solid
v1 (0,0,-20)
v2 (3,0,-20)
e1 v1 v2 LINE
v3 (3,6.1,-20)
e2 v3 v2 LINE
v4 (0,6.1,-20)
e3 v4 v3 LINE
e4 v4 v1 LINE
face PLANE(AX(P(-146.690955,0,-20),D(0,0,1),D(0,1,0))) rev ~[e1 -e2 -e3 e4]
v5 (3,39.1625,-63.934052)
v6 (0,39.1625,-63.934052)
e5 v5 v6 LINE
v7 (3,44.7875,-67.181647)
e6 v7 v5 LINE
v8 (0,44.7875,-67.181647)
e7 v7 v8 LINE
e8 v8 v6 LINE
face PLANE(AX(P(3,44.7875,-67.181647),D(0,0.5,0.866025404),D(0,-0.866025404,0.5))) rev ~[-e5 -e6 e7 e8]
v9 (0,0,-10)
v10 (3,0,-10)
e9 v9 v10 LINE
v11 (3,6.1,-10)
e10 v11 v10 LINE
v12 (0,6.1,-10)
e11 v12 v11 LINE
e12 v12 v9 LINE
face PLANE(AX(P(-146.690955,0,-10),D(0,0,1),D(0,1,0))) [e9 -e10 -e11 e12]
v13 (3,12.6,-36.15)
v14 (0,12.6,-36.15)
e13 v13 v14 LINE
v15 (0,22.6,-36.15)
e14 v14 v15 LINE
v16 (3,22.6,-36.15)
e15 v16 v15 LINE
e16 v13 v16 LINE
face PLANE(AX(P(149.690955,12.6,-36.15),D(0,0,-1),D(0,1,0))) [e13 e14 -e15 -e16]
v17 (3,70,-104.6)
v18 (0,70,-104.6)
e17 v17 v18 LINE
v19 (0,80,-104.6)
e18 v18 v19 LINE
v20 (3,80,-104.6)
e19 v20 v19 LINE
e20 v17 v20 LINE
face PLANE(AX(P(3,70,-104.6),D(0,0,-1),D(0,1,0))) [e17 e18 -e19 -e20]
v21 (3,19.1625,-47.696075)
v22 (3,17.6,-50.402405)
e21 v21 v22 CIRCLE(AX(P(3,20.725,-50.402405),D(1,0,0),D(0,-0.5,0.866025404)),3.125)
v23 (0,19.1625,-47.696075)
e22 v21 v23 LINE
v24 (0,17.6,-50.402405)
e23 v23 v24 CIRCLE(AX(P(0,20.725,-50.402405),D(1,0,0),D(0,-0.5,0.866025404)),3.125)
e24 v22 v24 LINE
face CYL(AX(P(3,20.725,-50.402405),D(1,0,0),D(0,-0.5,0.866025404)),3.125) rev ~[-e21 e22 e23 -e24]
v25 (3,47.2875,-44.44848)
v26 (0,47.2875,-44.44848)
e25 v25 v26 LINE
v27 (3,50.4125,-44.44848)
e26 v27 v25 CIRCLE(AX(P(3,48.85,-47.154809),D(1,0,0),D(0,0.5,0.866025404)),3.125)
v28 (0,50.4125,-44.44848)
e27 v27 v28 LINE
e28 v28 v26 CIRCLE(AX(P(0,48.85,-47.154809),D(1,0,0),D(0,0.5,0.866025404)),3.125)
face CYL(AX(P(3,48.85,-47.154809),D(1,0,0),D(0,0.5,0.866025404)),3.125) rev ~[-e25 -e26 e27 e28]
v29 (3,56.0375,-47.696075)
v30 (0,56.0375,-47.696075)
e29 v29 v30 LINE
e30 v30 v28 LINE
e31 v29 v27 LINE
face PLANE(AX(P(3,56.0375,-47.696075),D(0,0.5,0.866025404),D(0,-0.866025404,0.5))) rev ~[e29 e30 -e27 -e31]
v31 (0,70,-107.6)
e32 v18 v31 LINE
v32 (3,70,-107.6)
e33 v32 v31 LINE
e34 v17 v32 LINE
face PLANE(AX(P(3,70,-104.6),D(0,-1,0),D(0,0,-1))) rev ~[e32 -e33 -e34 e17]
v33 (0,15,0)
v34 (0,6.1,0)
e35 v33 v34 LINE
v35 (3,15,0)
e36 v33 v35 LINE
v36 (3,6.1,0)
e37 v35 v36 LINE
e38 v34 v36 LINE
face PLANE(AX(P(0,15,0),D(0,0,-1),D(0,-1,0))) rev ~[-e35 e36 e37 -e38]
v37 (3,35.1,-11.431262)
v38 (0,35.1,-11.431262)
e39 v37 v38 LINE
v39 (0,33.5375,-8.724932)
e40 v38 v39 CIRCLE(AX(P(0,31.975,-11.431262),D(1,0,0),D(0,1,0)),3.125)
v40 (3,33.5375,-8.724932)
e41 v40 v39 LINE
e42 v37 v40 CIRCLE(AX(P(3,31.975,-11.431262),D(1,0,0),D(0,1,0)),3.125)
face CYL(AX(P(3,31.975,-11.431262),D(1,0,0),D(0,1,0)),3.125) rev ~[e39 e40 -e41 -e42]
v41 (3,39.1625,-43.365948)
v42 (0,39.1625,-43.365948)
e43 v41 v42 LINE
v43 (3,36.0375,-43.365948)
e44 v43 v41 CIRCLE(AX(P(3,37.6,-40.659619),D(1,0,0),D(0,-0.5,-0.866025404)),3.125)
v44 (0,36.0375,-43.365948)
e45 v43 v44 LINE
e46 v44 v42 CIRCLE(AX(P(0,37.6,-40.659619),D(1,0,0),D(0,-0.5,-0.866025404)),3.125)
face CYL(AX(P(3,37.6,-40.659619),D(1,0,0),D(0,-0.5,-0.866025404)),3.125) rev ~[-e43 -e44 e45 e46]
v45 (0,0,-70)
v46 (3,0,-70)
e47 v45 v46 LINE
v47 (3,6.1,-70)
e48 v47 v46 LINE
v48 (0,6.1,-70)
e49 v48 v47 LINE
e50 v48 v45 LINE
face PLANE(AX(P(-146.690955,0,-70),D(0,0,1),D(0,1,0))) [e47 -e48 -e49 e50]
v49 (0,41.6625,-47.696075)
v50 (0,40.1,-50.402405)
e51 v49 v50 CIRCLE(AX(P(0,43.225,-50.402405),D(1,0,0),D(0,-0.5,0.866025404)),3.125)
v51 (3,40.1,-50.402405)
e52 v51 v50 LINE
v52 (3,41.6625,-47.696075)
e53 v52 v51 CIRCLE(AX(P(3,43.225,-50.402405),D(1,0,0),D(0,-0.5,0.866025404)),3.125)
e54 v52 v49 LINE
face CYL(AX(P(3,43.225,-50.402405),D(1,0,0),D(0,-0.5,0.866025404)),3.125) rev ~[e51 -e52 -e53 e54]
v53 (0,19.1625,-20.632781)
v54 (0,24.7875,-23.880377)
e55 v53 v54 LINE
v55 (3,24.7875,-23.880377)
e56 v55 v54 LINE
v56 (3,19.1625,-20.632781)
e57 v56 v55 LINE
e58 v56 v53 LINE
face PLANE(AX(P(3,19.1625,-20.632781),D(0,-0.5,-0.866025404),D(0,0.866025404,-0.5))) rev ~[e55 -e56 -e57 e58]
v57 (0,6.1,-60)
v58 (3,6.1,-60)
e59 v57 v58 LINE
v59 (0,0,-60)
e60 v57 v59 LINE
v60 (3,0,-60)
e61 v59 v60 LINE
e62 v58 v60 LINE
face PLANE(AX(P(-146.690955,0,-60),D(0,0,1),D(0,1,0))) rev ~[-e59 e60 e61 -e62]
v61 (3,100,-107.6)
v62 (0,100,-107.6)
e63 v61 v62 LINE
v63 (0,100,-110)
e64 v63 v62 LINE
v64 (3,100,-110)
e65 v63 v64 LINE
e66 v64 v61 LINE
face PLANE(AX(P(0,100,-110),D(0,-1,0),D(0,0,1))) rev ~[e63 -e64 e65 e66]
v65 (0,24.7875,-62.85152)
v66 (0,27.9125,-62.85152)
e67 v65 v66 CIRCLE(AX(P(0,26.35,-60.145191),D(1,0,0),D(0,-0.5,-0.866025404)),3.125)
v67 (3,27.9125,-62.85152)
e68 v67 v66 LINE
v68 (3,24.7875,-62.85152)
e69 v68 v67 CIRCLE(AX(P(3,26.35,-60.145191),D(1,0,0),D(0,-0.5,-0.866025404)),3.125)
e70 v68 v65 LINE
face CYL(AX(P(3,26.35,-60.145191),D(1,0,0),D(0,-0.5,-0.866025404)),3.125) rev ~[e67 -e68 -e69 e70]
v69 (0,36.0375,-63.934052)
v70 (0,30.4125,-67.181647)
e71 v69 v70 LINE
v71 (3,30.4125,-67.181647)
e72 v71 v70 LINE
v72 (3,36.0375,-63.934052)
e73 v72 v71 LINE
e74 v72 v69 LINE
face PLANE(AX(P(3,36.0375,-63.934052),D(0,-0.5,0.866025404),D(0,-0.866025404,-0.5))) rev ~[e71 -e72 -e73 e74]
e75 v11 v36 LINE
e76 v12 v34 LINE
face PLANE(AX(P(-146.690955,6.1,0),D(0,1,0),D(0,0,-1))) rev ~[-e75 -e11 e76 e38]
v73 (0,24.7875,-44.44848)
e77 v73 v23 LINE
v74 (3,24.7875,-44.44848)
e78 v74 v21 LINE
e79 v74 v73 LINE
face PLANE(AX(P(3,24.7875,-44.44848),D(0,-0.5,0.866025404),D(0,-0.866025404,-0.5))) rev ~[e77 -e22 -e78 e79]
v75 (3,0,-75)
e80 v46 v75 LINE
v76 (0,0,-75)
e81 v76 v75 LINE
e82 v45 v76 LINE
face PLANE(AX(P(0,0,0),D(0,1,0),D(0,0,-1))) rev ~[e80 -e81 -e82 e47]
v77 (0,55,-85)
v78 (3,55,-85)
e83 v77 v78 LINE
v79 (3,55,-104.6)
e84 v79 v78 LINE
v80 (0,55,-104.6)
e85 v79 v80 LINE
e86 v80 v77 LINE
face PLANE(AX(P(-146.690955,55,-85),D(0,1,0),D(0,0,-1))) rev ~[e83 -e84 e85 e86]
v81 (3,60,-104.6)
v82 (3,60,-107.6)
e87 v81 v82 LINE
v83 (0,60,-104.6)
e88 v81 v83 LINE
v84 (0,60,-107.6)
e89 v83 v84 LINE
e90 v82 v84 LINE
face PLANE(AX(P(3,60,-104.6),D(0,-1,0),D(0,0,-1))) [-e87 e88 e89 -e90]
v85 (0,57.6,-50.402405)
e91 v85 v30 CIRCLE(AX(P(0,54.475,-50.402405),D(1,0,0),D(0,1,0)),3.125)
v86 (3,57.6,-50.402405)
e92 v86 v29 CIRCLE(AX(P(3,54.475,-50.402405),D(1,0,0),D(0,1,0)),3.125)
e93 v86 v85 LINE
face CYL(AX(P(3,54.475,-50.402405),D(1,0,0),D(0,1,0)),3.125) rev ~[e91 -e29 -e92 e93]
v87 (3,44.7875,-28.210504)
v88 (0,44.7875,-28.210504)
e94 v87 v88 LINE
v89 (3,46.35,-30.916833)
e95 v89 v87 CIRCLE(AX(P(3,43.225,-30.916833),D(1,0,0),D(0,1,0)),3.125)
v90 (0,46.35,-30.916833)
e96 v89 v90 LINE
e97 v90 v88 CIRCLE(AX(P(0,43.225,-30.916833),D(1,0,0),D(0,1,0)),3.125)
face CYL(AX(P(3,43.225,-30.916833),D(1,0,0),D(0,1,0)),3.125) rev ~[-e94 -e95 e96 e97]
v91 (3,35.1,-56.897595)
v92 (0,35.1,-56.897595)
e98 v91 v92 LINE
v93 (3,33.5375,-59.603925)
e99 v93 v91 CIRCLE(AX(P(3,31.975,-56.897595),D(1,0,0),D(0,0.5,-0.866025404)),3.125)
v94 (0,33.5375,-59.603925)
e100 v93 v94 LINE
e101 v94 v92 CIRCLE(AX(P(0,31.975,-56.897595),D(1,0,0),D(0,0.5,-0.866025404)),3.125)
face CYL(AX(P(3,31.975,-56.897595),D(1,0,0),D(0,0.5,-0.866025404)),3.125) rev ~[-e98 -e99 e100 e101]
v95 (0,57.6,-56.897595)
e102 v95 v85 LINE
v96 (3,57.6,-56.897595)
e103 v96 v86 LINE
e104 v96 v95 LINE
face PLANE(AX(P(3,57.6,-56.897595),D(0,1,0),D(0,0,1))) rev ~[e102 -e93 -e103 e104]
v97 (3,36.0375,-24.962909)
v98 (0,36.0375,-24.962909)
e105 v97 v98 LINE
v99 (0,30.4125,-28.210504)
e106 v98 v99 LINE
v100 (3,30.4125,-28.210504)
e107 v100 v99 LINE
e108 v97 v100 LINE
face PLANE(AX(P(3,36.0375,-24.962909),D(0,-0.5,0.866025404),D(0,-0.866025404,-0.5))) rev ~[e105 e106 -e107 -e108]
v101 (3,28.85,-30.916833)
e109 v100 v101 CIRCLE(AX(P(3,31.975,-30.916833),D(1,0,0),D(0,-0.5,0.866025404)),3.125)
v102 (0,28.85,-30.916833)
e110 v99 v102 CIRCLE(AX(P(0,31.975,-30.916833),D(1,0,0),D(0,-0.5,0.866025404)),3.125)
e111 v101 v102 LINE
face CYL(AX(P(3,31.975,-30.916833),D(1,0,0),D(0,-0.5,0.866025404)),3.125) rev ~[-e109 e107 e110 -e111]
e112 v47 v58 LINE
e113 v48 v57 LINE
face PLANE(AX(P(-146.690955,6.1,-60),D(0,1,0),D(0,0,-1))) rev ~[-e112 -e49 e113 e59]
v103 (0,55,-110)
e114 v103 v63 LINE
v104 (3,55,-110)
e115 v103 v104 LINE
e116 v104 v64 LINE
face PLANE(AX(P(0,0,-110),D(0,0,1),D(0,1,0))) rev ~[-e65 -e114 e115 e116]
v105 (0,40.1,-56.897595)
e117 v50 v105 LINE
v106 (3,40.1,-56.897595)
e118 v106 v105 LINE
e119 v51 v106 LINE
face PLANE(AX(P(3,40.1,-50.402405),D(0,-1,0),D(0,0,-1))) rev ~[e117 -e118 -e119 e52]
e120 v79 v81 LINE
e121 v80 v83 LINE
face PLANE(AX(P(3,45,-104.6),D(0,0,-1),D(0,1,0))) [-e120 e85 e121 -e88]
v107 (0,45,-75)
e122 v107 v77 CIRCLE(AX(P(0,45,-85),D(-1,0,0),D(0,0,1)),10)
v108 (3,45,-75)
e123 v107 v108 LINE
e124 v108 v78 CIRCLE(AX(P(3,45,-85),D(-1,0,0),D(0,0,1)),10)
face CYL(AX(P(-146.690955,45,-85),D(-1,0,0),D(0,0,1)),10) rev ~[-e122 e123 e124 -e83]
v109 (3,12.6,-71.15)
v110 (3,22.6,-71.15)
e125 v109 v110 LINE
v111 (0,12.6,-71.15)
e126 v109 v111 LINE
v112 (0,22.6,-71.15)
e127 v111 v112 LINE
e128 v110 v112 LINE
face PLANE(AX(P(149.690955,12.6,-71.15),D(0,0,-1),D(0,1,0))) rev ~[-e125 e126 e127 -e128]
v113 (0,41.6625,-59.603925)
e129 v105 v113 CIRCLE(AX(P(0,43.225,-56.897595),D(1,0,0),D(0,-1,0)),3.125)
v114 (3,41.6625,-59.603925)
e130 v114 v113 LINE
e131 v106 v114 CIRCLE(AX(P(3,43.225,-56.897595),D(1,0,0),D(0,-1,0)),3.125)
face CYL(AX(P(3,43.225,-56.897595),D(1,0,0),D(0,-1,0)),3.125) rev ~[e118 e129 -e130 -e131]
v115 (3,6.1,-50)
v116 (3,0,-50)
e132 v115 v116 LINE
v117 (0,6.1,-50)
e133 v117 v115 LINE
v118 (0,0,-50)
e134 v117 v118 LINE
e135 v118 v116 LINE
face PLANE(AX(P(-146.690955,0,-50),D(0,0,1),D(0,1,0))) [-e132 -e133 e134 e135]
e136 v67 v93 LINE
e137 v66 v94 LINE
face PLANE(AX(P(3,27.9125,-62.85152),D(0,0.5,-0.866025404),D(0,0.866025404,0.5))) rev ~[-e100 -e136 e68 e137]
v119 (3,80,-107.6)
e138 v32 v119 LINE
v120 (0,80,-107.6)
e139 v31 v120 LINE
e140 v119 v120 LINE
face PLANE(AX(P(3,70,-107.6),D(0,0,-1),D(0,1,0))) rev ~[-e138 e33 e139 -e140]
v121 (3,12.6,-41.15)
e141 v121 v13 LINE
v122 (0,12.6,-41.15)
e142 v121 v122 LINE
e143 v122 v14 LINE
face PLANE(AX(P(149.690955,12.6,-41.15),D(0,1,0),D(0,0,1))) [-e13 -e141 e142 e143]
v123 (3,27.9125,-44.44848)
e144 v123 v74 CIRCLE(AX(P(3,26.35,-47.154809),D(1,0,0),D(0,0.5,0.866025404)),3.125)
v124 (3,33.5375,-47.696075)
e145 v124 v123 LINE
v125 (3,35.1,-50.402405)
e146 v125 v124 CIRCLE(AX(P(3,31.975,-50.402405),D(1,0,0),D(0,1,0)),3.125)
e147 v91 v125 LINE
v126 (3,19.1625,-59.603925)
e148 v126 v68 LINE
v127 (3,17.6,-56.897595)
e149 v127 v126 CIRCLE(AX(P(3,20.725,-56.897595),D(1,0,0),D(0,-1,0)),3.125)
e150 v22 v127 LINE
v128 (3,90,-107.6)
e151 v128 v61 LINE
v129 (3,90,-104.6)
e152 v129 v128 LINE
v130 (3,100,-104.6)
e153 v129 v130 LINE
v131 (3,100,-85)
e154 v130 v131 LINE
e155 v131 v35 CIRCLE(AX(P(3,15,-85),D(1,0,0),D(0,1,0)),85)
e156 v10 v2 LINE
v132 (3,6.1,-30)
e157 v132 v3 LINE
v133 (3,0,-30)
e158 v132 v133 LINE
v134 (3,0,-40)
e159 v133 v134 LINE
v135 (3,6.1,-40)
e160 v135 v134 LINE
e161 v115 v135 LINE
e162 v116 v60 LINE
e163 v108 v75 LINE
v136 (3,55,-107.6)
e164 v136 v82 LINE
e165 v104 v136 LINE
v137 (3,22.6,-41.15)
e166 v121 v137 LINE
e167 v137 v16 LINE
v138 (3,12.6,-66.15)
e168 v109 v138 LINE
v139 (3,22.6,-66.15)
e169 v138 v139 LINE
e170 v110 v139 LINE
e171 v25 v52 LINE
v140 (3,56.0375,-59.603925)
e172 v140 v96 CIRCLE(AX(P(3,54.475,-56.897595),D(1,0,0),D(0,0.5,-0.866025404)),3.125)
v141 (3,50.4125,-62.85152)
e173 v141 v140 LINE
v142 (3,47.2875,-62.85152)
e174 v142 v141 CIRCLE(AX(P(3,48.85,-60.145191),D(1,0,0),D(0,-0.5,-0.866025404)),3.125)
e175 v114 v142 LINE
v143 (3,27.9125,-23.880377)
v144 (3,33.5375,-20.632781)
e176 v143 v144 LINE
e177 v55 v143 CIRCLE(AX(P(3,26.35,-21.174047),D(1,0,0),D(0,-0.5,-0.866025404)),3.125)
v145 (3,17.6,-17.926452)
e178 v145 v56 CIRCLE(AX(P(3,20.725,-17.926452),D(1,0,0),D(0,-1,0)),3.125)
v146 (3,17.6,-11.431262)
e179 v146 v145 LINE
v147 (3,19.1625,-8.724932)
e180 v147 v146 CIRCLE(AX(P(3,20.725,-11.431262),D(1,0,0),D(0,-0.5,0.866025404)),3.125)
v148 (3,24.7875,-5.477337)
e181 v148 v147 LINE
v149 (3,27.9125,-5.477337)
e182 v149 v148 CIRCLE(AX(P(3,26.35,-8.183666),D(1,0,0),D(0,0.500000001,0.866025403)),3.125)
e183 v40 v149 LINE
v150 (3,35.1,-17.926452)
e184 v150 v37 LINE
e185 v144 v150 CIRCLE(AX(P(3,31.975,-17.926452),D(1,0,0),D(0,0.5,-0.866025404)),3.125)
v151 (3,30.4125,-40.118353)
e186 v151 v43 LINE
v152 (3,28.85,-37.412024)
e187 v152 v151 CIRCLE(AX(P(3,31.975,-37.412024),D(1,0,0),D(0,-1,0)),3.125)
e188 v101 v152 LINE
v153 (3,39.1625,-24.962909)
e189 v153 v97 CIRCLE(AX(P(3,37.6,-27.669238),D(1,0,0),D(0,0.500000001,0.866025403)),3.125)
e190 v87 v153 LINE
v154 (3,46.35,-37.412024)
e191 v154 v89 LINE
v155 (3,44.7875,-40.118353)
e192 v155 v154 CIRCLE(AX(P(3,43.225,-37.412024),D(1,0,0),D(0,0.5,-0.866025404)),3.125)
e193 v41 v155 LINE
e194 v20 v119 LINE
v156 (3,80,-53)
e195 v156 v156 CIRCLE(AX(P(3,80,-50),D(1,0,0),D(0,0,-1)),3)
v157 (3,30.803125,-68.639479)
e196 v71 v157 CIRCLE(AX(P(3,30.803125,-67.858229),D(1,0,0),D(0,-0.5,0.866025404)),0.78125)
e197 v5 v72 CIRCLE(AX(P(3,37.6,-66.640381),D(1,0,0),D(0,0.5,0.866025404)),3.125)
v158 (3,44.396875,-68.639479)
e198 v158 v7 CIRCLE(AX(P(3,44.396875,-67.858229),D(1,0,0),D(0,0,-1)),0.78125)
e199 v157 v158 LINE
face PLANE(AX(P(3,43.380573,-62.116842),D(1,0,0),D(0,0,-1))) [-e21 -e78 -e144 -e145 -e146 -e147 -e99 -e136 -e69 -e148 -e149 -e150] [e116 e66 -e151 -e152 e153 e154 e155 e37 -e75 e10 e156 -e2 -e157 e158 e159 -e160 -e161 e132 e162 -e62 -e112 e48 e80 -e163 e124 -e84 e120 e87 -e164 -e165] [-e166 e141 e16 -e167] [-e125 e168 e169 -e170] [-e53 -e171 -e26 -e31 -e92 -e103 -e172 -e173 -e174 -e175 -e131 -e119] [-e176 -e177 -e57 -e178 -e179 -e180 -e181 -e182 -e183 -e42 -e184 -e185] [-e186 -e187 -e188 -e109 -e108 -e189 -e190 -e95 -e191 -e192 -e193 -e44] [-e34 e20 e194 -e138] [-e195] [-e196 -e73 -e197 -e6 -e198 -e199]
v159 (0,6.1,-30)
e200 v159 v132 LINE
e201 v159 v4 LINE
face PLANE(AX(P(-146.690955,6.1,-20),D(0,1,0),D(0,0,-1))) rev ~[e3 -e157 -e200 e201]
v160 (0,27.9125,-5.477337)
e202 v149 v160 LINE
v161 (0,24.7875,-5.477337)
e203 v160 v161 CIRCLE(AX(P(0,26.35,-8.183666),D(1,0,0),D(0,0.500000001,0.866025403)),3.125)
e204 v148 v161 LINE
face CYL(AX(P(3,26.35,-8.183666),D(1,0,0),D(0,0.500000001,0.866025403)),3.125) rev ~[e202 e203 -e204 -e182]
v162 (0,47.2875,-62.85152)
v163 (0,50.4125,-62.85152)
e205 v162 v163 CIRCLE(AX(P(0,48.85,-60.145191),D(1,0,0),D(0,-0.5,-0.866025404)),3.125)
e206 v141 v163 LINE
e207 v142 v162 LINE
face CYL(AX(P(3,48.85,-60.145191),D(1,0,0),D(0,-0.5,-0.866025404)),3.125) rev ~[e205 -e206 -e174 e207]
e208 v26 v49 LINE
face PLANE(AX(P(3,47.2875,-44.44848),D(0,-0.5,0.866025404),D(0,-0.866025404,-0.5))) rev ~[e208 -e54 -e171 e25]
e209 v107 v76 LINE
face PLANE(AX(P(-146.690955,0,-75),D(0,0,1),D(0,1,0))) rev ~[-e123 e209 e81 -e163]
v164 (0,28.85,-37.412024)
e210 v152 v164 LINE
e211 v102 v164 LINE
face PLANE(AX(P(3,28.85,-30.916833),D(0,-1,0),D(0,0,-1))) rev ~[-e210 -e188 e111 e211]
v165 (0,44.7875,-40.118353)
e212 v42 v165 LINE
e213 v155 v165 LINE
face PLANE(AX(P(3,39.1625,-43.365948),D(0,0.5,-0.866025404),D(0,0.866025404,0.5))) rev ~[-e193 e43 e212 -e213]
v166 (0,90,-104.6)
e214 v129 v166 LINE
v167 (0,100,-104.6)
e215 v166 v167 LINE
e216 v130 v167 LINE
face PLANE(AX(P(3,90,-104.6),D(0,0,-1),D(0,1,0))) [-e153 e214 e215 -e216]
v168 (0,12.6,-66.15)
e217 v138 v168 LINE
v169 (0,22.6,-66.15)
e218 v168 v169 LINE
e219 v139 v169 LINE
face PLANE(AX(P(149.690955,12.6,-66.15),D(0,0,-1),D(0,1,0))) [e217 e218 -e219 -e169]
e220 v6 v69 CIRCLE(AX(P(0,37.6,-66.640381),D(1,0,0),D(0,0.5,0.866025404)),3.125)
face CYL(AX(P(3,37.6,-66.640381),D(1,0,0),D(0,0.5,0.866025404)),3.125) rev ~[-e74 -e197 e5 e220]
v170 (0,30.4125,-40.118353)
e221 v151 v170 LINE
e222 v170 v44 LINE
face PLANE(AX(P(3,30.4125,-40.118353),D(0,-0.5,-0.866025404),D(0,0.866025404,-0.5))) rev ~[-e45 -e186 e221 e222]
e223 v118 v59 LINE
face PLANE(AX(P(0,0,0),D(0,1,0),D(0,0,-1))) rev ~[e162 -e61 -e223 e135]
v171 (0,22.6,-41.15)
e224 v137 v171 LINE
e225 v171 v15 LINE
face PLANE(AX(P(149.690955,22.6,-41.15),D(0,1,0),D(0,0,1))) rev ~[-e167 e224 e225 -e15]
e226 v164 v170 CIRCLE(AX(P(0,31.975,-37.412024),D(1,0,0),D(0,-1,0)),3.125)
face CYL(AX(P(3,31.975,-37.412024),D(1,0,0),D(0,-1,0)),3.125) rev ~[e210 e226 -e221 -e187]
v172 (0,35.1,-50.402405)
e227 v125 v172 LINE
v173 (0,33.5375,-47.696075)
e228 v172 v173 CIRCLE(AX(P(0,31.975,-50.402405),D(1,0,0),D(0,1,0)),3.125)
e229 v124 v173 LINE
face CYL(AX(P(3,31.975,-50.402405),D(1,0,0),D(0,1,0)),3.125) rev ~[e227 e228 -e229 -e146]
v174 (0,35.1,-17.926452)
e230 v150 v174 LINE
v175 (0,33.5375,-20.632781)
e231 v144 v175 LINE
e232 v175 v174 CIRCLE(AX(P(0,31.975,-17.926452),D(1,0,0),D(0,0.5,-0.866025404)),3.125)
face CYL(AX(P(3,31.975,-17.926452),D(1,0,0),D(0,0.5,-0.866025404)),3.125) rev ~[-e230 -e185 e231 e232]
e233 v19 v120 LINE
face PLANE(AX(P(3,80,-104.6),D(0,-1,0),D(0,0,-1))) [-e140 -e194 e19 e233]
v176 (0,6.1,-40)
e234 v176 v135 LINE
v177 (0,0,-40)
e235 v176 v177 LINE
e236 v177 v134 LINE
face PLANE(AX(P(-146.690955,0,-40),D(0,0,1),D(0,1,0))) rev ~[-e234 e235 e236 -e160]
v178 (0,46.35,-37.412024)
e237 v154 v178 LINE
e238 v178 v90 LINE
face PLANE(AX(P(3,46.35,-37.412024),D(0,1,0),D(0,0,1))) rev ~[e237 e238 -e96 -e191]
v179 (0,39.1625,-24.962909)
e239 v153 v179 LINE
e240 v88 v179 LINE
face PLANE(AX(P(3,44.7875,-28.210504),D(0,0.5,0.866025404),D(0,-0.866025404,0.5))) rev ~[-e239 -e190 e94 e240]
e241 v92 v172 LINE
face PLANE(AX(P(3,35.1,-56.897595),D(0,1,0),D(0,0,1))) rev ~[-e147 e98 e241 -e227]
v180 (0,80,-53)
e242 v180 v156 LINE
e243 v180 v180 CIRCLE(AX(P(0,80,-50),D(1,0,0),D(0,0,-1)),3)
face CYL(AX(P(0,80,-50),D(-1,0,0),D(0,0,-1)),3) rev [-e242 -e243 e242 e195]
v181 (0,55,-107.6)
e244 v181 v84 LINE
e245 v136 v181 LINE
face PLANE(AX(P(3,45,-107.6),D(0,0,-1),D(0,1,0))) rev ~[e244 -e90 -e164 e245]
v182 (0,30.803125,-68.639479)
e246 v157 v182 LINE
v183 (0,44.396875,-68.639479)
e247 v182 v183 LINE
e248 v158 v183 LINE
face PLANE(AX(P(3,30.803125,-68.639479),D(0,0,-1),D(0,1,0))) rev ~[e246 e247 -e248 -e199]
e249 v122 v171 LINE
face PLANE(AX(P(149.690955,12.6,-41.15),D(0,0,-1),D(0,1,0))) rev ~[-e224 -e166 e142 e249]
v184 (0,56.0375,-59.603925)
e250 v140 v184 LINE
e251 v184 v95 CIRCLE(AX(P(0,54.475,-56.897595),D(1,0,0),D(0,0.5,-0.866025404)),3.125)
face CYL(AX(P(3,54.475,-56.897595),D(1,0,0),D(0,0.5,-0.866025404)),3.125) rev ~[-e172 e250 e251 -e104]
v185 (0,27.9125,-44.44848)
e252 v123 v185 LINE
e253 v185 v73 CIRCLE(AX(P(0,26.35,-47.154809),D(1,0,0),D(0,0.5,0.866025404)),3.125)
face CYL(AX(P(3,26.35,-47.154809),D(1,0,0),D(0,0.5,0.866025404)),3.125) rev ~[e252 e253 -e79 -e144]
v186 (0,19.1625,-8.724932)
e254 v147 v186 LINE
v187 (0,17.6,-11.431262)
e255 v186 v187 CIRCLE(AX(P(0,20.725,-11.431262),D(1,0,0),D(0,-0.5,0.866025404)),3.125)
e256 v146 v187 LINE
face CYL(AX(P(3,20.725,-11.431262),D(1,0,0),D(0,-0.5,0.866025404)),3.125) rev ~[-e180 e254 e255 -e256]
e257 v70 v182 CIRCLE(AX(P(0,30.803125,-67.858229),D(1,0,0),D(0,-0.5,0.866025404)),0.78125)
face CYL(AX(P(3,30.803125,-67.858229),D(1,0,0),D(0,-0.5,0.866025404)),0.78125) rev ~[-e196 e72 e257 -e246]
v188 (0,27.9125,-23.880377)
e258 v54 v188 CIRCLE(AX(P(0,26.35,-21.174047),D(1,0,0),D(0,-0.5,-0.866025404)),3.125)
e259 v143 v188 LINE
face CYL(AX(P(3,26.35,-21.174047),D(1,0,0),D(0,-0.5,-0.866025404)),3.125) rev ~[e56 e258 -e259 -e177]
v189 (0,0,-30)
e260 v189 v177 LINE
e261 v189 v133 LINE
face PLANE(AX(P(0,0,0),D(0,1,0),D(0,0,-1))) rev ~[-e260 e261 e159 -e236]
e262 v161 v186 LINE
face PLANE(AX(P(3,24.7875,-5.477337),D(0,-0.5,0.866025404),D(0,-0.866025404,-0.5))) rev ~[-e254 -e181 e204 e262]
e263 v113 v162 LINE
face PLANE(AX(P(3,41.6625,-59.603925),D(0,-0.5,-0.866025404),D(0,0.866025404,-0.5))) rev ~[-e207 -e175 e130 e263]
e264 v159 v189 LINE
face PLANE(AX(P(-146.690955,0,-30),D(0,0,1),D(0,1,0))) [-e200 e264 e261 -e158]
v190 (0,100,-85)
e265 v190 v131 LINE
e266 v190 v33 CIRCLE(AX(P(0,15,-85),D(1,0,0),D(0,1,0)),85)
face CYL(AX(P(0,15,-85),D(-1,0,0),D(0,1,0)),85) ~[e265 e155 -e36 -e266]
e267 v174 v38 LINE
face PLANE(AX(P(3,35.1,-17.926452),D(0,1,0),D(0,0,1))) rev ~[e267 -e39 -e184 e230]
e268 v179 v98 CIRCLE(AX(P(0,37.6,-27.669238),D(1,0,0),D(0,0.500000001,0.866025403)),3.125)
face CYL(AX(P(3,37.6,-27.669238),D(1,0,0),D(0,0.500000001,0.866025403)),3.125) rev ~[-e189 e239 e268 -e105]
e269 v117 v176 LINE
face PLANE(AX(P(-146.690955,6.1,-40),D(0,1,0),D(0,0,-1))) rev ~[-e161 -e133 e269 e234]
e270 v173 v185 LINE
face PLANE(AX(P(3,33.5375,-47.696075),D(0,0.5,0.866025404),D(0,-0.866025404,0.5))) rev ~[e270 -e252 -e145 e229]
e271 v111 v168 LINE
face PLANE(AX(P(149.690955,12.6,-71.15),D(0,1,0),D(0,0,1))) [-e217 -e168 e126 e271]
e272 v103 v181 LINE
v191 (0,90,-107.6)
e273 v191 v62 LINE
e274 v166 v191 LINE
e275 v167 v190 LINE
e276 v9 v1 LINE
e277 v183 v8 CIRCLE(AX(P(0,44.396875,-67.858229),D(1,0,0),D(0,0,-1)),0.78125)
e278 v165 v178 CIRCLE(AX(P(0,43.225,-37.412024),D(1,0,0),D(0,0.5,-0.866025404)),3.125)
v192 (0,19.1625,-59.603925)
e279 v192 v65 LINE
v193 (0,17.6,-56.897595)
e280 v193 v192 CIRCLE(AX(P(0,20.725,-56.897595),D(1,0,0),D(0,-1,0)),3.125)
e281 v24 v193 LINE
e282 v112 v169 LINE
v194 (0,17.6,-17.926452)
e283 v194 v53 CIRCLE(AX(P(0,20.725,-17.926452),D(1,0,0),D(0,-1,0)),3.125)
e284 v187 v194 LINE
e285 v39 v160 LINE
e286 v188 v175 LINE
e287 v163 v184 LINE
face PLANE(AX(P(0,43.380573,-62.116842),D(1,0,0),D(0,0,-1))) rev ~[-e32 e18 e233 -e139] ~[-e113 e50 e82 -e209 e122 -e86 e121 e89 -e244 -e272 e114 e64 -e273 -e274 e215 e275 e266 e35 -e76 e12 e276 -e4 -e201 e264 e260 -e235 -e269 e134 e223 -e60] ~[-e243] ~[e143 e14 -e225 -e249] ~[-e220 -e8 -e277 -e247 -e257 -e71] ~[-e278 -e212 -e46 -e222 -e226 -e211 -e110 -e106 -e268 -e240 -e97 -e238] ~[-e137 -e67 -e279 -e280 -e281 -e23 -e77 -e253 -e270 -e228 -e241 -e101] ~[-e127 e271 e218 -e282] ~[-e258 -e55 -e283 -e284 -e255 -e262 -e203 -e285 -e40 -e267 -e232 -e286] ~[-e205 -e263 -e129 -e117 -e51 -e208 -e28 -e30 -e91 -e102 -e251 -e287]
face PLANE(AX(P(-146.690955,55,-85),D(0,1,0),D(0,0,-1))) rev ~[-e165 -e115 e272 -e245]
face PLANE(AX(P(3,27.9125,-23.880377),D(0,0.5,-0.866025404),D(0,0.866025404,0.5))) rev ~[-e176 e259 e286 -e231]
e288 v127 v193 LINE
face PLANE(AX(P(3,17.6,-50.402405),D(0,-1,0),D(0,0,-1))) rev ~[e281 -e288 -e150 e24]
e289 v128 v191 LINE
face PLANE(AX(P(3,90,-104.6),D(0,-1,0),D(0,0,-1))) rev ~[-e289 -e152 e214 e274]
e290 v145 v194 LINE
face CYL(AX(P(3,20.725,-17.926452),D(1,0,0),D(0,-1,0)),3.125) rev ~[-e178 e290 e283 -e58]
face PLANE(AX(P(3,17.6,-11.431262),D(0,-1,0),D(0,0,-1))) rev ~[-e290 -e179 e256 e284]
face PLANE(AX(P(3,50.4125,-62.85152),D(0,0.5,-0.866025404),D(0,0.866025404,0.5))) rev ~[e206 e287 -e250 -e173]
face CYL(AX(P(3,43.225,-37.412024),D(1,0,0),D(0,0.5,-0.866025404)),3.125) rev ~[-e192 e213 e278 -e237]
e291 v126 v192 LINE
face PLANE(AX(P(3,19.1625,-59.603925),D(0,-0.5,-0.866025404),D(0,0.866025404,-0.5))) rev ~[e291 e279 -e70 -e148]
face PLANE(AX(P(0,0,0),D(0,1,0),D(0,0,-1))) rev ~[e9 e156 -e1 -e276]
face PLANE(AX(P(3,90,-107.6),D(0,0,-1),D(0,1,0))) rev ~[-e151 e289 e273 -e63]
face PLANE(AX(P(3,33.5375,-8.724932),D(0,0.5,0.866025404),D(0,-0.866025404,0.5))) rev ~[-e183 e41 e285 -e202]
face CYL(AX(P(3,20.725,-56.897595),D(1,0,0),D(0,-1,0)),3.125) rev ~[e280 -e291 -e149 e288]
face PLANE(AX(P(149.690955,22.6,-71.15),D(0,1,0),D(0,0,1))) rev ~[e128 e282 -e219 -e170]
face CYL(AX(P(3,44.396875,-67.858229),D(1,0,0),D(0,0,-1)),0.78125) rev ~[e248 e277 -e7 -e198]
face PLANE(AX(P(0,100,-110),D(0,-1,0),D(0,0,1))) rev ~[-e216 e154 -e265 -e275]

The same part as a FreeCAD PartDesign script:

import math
import FreeCAD as App
import Part
import Sketcher
Q = App.Units.Quantity

doc = App.newDocument("Part")
body = doc.addObject("PartDesign::Body", "Body")

sketch1 = doc.addObject("Sketcher::SketchObject", "Sketch")
body.addObject(sketch1)
sketch1.AttachmentSupport = (doc.YZ_Plane, [""])
sketch1.MapMode = "FlatFace"
sketch1.addGeometry([
    Part.LineSegment(App.Vector(0, 0, 0), App.Vector(0, -110, 0)),
    Part.LineSegment(App.Vector(0, -110, 0), App.Vector(100, -110, 0)),
    Part.LineSegment(App.Vector(100, -110, 0), App.Vector(100, -85, 0)),
    Part.ArcOfCircle(Part.Circle(App.Vector(15, -85, 0), App.Vector(0, 0, 1), 85), math.radians(0), math.radians(90)),
    Part.LineSegment(App.Vector(15, 0, 0), App.Vector(0, 0, 0)),
    Part.Circle(App.Vector(80, -50, 0), App.Vector(0, 0, 1), 3),
], False)
sketch1.addConstraint([
    Sketcher.Constraint("Coincident", 0, 2, 1, 1),
    Sketcher.Constraint("Coincident", 1, 2, 2, 1),
    Sketcher.Constraint("Tangent", 2, 2, 3, 1),
    Sketcher.Constraint("Tangent", 3, 2, 4, 1),
    Sketcher.Constraint("Coincident", 4, 2, 0, 1),
    Sketcher.Constraint("Vertical", 0),
    Sketcher.Constraint("Horizontal", 1),
    Sketcher.Constraint("Vertical", 2),
    Sketcher.Constraint("Horizontal", 4),
    Sketcher.Constraint("Coincident", 4, 2, -1, 1),
    Sketcher.Constraint("Diameter", 5, Q("6 mm")),
    Sketcher.Constraint("Radius", 3, Q("85 mm")),
    Sketcher.Constraint("DistanceX", 1, 1, 1, 2, Q("100 mm")),
    Sketcher.Constraint("DistanceY", 0, 2, 0, 1, Q("110 mm")),
    Sketcher.Constraint("DistanceX", -1, 1, 5, 3, Q("80 mm")),
    Sketcher.Constraint("DistanceY", 5, 3, -1, 1, Q("50 mm")),
])
pad1 = doc.addObject("PartDesign::Pad", "Pad")
body.addObject(pad1)
pad1.Profile = sketch1
pad1.Length = 3

sketch2 = doc.addObject("Sketcher::SketchObject", "Sketch001")
body.addObject(sketch2)
sketch2.AttachmentSupport = (doc.YZ_Plane, [""])
sketch2.MapMode = "FlatFace"
sketch2.AttachmentOffset = App.Placement(App.Vector(0, 0, 3), App.Rotation())
sketch2.addGeometry([
    Part.LineSegment(App.Vector(0, -75, 0), App.Vector(0, -110, 0)),
    Part.LineSegment(App.Vector(0, -110, 0), App.Vector(55, -110, 0)),
    Part.LineSegment(App.Vector(55, -110, 0), App.Vector(55, -85, 0)),
    Part.ArcOfCircle(Part.Circle(App.Vector(45, -85, 0), App.Vector(0, 0, 1), 10), math.radians(0), math.radians(90)),
    Part.LineSegment(App.Vector(45, -75, 0), App.Vector(0, -75, 0)),
], False)
sketch2.addConstraint([
    Sketcher.Constraint("Coincident", 0, 2, 1, 1),
    Sketcher.Constraint("Coincident", 1, 2, 2, 1),
    Sketcher.Constraint("Tangent", 2, 2, 3, 1),
    Sketcher.Constraint("Tangent", 3, 2, 4, 1),
    Sketcher.Constraint("Coincident", 4, 2, 0, 1),
    Sketcher.Constraint("Vertical", 0),
    Sketcher.Constraint("Horizontal", 1),
    Sketcher.Constraint("Vertical", 2),
    Sketcher.Constraint("Horizontal", 4),
    Sketcher.Constraint("PointOnObject", 0, 2, -2),
    Sketcher.Constraint("Radius", 3, Q("10 mm")),
    Sketcher.Constraint("DistanceX", 1, 1, 1, 2, Q("55 mm")),
    Sketcher.Constraint("DistanceY", 0, 2, 0, 1, Q("35 mm")),
    Sketcher.Constraint("DistanceY", 3, 3, -1, 1, Q("85 mm")),
])
pocket1 = doc.addObject("PartDesign::Pocket", "Pocket")
body.addObject(pocket1)
pocket1.Profile = sketch2
pocket1.Type = "ThroughAll"
pocket1.Midplane = True

sketch3 = doc.addObject("Sketcher::SketchObject", "Sketch002")
body.addObject(sketch3)
sketch3.AttachmentSupport = (doc.YZ_Plane, [""])
sketch3.MapMode = "FlatFace"
sketch3.AttachmentOffset = App.Placement(App.Vector(0, 0, 3), App.Rotation())
sketch3.addGeometry([
    Part.LineSegment(App.Vector(6, -20, 0), App.Vector(0, -20, 0)),
    Part.LineSegment(App.Vector(0, -20, 0), App.Vector(0, -30, 0)),
    Part.LineSegment(App.Vector(0, -30, 0), App.Vector(6, -30, 0)),
    Part.LineSegment(App.Vector(6, -30, 0), App.Vector(6, -20, 0)),
    Part.LineSegment(App.Vector(6, 0, 0), App.Vector(0, 0, 0)),
    Part.LineSegment(App.Vector(0, 0, 0), App.Vector(0, -10, 0)),
    Part.LineSegment(App.Vector(0, -10, 0), App.Vector(6, -10, 0)),
    Part.LineSegment(App.Vector(6, -10, 0), App.Vector(6, 0, 0)),
    Part.LineSegment(App.Vector(6, -40, 0), App.Vector(0, -40, 0)),
    Part.LineSegment(App.Vector(0, -40, 0), App.Vector(0, -50, 0)),
    Part.LineSegment(App.Vector(0, -50, 0), App.Vector(6, -50, 0)),
    Part.LineSegment(App.Vector(6, -50, 0), App.Vector(6, -40, 0)),
    Part.LineSegment(App.Vector(6, -60, 0), App.Vector(0, -60, 0)),
    Part.LineSegment(App.Vector(0, -60, 0), App.Vector(0, -70, 0)),
    Part.LineSegment(App.Vector(0, -70, 0), App.Vector(6, -70, 0)),
    Part.LineSegment(App.Vector(6, -70, 0), App.Vector(6, -60, 0)),
], False)
sketch3.addConstraint([
    Sketcher.Constraint("Coincident", 0, 2, 1, 1),
    Sketcher.Constraint("Coincident", 1, 2, 2, 1),
    Sketcher.Constraint("Coincident", 2, 2, 3, 1),
    Sketcher.Constraint("Coincident", 3, 2, 0, 1),
    Sketcher.Constraint("Coincident", 4, 2, 5, 1),
    Sketcher.Constraint("Coincident", 5, 2, 6, 1),
    Sketcher.Constraint("Coincident", 6, 2, 7, 1),
    Sketcher.Constraint("Coincident", 7, 2, 4, 1),
    Sketcher.Constraint("Coincident", 8, 2, 9, 1),
    Sketcher.Constraint("Coincident", 9, 2, 10, 1),
    Sketcher.Constraint("Coincident", 10, 2, 11, 1),
    Sketcher.Constraint("Coincident", 11, 2, 8, 1),
    Sketcher.Constraint("Coincident", 12, 2, 13, 1),
    Sketcher.Constraint("Coincident", 13, 2, 14, 1),
    Sketcher.Constraint("Coincident", 14, 2, 15, 1),
    Sketcher.Constraint("Coincident", 15, 2, 12, 1),
    Sketcher.Constraint("Horizontal", 0),
    Sketcher.Constraint("Vertical", 1),
    Sketcher.Constraint("Horizontal", 2),
    Sketcher.Constraint("Vertical", 3),
    Sketcher.Constraint("Horizontal", 4),
    Sketcher.Constraint("Vertical", 5),
    Sketcher.Constraint("Horizontal", 6),
    Sketcher.Constraint("Vertical", 7),
    Sketcher.Constraint("Horizontal", 8),
    Sketcher.Constraint("Vertical", 9),
    Sketcher.Constraint("Horizontal", 10),
    Sketcher.Constraint("Vertical", 11),
    Sketcher.Constraint("Horizontal", 12),
    Sketcher.Constraint("Vertical", 13),
    Sketcher.Constraint("Horizontal", 14),
    Sketcher.Constraint("Vertical", 15),
    Sketcher.Constraint("Coincident", 4, 2, -1, 1),
    Sketcher.Constraint("PointOnObject", 0, 2, -2),
    Sketcher.Constraint("PointOnObject", 8, 2, -2),
    Sketcher.Constraint("PointOnObject", 12, 2, -2),
    Sketcher.Constraint("Vertical", 3, 2, 6, 2),
    Sketcher.Constraint("Vertical", 7, 2, 10, 2),
    Sketcher.Constraint("Vertical", 11, 2, 14, 2),
    Sketcher.Constraint("Equal", 3, 5),
    Sketcher.Constraint("Equal", 7, 9),
    Sketcher.Constraint("Equal", 11, 13),
    Sketcher.Constraint("DistanceY", 1, 2, 1, 1, Q("10 mm")),
    Sketcher.Constraint("DistanceX", 0, 2, 0, 1, Q("6.1 mm")),
    Sketcher.Constraint("DistanceY", 0, 2, -1, 1, Q("20 mm")),
    Sketcher.Constraint("DistanceY", 8, 2, -1, 1, Q("40 mm")),
    Sketcher.Constraint("DistanceY", 12, 2, -1, 1, Q("60 mm")),
])
pocket2 = doc.addObject("PartDesign::Pocket", "Pocket001")
body.addObject(pocket2)
pocket2.Profile = sketch3
pocket2.Type = "ThroughAll"
pocket2.Midplane = True

sketch4 = doc.addObject("Sketcher::SketchObject", "Sketch003")
body.addObject(sketch4)
sketch4.AttachmentSupport = (doc.YZ_Plane, [""])
sketch4.MapMode = "FlatFace"
sketch4.addGeometry([
    Part.LineSegment(App.Vector(23, -71, 0), App.Vector(13, -71, 0)),
    Part.LineSegment(App.Vector(13, -71, 0), App.Vector(13, -66, 0)),
    Part.LineSegment(App.Vector(13, -66, 0), App.Vector(23, -66, 0)),
    Part.LineSegment(App.Vector(23, -66, 0), App.Vector(23, -71, 0)),
    Part.LineSegment(App.Vector(23, -41, 0), App.Vector(13, -41, 0)),
    Part.LineSegment(App.Vector(13, -41, 0), App.Vector(13, -36, 0)),
    Part.LineSegment(App.Vector(13, -36, 0), App.Vector(23, -36, 0)),
    Part.LineSegment(App.Vector(23, -36, 0), App.Vector(23, -41, 0)),
], False)
sketch4.addConstraint([
    Sketcher.Constraint("Coincident", 0, 2, 1, 1),
    Sketcher.Constraint("Coincident", 1, 2, 2, 1),
    Sketcher.Constraint("Coincident", 2, 2, 3, 1),
    Sketcher.Constraint("Coincident", 3, 2, 0, 1),
    Sketcher.Constraint("Coincident", 4, 2, 5, 1),
    Sketcher.Constraint("Coincident", 5, 2, 6, 1),
    Sketcher.Constraint("Coincident", 6, 2, 7, 1),
    Sketcher.Constraint("Coincident", 7, 2, 4, 1),
    Sketcher.Constraint("Horizontal", 0),
    Sketcher.Constraint("Vertical", 1),
    Sketcher.Constraint("Horizontal", 2),
    Sketcher.Constraint("Vertical", 3),
    Sketcher.Constraint("Horizontal", 4),
    Sketcher.Constraint("Vertical", 5),
    Sketcher.Constraint("Horizontal", 6),
    Sketcher.Constraint("Vertical", 7),
    Sketcher.Constraint("Vertical", 1, 2, 4, 2),
    Sketcher.Constraint("Vertical", 3, 2, 6, 2),
    Sketcher.Constraint("Equal", 3, 5),
    Sketcher.Constraint("DistanceX", 0, 2, 0, 1, Q("10 mm")),
    Sketcher.Constraint("DistanceY", 1, 1, 1, 2, Q("5 mm")),
    Sketcher.Constraint("DistanceY", 1, 2, 4, 2, Q("25 mm")),
    Sketcher.Constraint("DistanceX", -1, 1, 0, 2, Q("12.6 mm")),
    Sketcher.Constraint("DistanceY", 0, 2, -1, 1, Q("71.15 mm")),
])
pocket3 = doc.addObject("PartDesign::Pocket", "Pocket002")
body.addObject(pocket3)
pocket3.Profile = sketch4
pocket3.Type = "ThroughAll"
pocket3.Midplane = True

sketch5 = doc.addObject("Sketcher::SketchObject", "Sketch004")
body.addObject(sketch5)
sketch5.AttachmentSupport = (doc.YZ_Plane, [""])
sketch5.MapMode = "FlatFace"
sketch5.AttachmentOffset = App.Placement(App.Vector(0, 0, 3), App.Rotation())
sketch5.addGeometry([
    Part.LineSegment(App.Vector(100, -104.6, 0), App.Vector(90, -104.6, 0)),
    Part.LineSegment(App.Vector(90, -104.6, 0), App.Vector(90, -107.6, 0)),
    Part.LineSegment(App.Vector(90, -107.6, 0), App.Vector(100, -107.6, 0)),
    Part.LineSegment(App.Vector(100, -107.6, 0), App.Vector(100, -104.6, 0)),
    Part.LineSegment(App.Vector(80, -104.6, 0), App.Vector(70, -104.6, 0)),
    Part.LineSegment(App.Vector(70, -104.6, 0), App.Vector(70, -107.6, 0)),
    Part.LineSegment(App.Vector(70, -107.6, 0), App.Vector(80, -107.6, 0)),
    Part.LineSegment(App.Vector(80, -107.6, 0), App.Vector(80, -104.6, 0)),
    Part.LineSegment(App.Vector(60, -104.6, 0), App.Vector(45, -104.6, 0)),
    Part.LineSegment(App.Vector(45, -104.6, 0), App.Vector(45, -107.6, 0)),
    Part.LineSegment(App.Vector(45, -107.6, 0), App.Vector(60, -107.6, 0)),
    Part.LineSegment(App.Vector(60, -107.6, 0), App.Vector(60, -104.6, 0)),
], False)
sketch5.addConstraint([
    Sketcher.Constraint("Coincident", 0, 2, 1, 1),
    Sketcher.Constraint("Coincident", 1, 2, 2, 1),
    Sketcher.Constraint("Coincident", 2, 2, 3, 1),
    Sketcher.Constraint("Coincident", 3, 2, 0, 1),
    Sketcher.Constraint("Coincident", 4, 2, 5, 1),
    Sketcher.Constraint("Coincident", 5, 2, 6, 1),
    Sketcher.Constraint("Coincident", 6, 2, 7, 1),
    Sketcher.Constraint("Coincident", 7, 2, 4, 1),
    Sketcher.Constraint("Coincident", 8, 2, 9, 1),
    Sketcher.Constraint("Coincident", 9, 2, 10, 1),
    Sketcher.Constraint("Coincident", 10, 2, 11, 1),
    Sketcher.Constraint("Coincident", 11, 2, 8, 1),
    Sketcher.Constraint("Horizontal", 0),
    Sketcher.Constraint("Vertical", 1),
    Sketcher.Constraint("Horizontal", 2),
    Sketcher.Constraint("Vertical", 3),
    Sketcher.Constraint("Horizontal", 4),
    Sketcher.Constraint("Vertical", 5),
    Sketcher.Constraint("Horizontal", 6),
    Sketcher.Constraint("Vertical", 7),
    Sketcher.Constraint("Horizontal", 8),
    Sketcher.Constraint("Vertical", 9),
    Sketcher.Constraint("Horizontal", 10),
    Sketcher.Constraint("Vertical", 11),
    Sketcher.Constraint("Horizontal", 3, 2, 4, 2),
    Sketcher.Constraint("Horizontal", 2, 2, 5, 2),
    Sketcher.Constraint("Horizontal", 7, 2, 8, 2),
    Sketcher.Constraint("Horizontal", 6, 2, 9, 2),
    Sketcher.Constraint("Equal", 2, 4),
    Sketcher.Constraint("DistanceX", 0, 2, 0, 1, Q("10 mm")),
    Sketcher.Constraint("DistanceX", 8, 2, 8, 1, Q("15 mm")),
    Sketcher.Constraint("DistanceY", 1, 2, 1, 1, Q("3 mm")),
    Sketcher.Constraint("DistanceX", -1, 1, 0, 2, Q("90 mm")),
    Sketcher.Constraint("DistanceX", -1, 1, 4, 2, Q("70 mm")),
    Sketcher.Constraint("DistanceX", -1, 1, 8, 2, Q("45 mm")),
    Sketcher.Constraint("DistanceY", 0, 2, -1, 1, Q("104.6 mm")),
])
pocket4 = doc.addObject("PartDesign::Pocket", "Pocket003")
body.addObject(pocket4)
pocket4.Profile = sketch5
pocket4.Type = "ThroughAll"

sketch6 = doc.addObject("Sketcher::SketchObject", "Sketch005")
body.addObject(sketch6)
sketch6.AttachmentSupport = (doc.YZ_Plane, [""])
sketch6.MapMode = "FlatFace"
sketch6.AttachmentOffset = App.Placement(App.Vector(0, 0, 3), App.Rotation())
sketch6.addGeometry([
    Part.LineSegment(App.Vector(50.4, -62.9, 0), App.Vector(56, -59.6, 0)),
    Part.ArcOfCircle(Part.Circle(App.Vector(54.5, -56.9, 0), App.Vector(0, 0, 1), 3.1), math.radians(-60), math.radians(0)),
    Part.LineSegment(App.Vector(57.6, -56.9, 0), App.Vector(57.6, -50.4, 0)),
    Part.ArcOfCircle(Part.Circle(App.Vector(54.5, -50.4, 0), App.Vector(0, 0, 1), 3.1), math.radians(0), math.radians(60)),
    Part.LineSegment(App.Vector(56, -47.7, 0), App.Vector(50.4, -44.4, 0)),
    Part.ArcOfCircle(Part.Circle(App.Vector(48.9, -47.2, 0), App.Vector(0, 0, 1), 3.1), math.radians(60), math.radians(120)),
    Part.LineSegment(App.Vector(47.3, -44.4, 0), App.Vector(41.7, -47.7, 0)),
    Part.ArcOfCircle(Part.Circle(App.Vector(43.2, -50.4, 0), App.Vector(0, 0, 1), 3.1), math.radians(120), math.radians(180)),
    Part.LineSegment(App.Vector(40.1, -50.4, 0), App.Vector(40.1, -56.9, 0)),
    Part.ArcOfCircle(Part.Circle(App.Vector(43.2, -56.9, 0), App.Vector(0, 0, 1), 3.1), math.radians(180), math.radians(240)),
    Part.LineSegment(App.Vector(41.7, -59.6, 0), App.Vector(47.3, -62.9, 0)),
    Part.ArcOfCircle(Part.Circle(App.Vector(48.9, -60.1, 0), App.Vector(0, 0, 1), 3.1), math.radians(-120), math.radians(-60)),
    Part.LineSegment(App.Vector(44.8, -67.2, 0), App.Vector(39.2, -63.9, 0)),
    Part.ArcOfCircle(Part.Circle(App.Vector(37.6, -66.6, 0), App.Vector(0, 0, 1), 3.1), math.radians(60), math.radians(120)),
    Part.LineSegment(App.Vector(36, -63.9, 0), App.Vector(30.4, -67.2, 0)),
    Part.ArcOfCircle(Part.Circle(App.Vector(30.8, -67.9, 0), App.Vector(0, 0, 1), 0.8), math.radians(120), math.radians(270)),
    Part.LineSegment(App.Vector(30.8, -68.6, 0), App.Vector(44.4, -68.6, 0)),
    Part.ArcOfCircle(Part.Circle(App.Vector(44.4, -67.9, 0), App.Vector(0, 0, 1), 0.8), math.radians(-90), math.radians(60)),
    Part.LineSegment(App.Vector(27.9, -62.9, 0), App.Vector(33.5, -59.6, 0)),
    Part.ArcOfCircle(Part.Circle(App.Vector(32, -56.9, 0), App.Vector(0, 0, 1), 3.1), math.radians(-60), math.radians(0)),
    Part.LineSegment(App.Vector(35.1, -56.9, 0), App.Vector(35.1, -50.4, 0)),
    Part.ArcOfCircle(Part.Circle(App.Vector(32, -50.4, 0), App.Vector(0, 0, 1), 3.1), math.radians(0), math.radians(60)),
    Part.LineSegment(App.Vector(33.5, -47.7, 0), App.Vector(27.9, -44.4, 0)),
    Part.ArcOfCircle(Part.Circle(App.Vector(26.4, -47.2, 0), App.Vector(0, 0, 1), 3.1), math.radians(60), math.radians(120)),
    Part.LineSegment(App.Vector(24.8, -44.4, 0), App.Vector(19.2, -47.7, 0)),
    Part.ArcOfCircle(Part.Circle(App.Vector(20.7, -50.4, 0), App.Vector(0, 0, 1), 3.1), math.radians(120), math.radians(180)),
    Part.LineSegment(App.Vector(17.6, -50.4, 0), App.Vector(17.6, -56.9, 0)),
    Part.ArcOfCircle(Part.Circle(App.Vector(20.7, -56.9, 0), App.Vector(0, 0, 1), 3.1), math.radians(180), math.radians(240)),
    Part.LineSegment(App.Vector(19.2, -59.6, 0), App.Vector(24.8, -62.9, 0)),
    Part.ArcOfCircle(Part.Circle(App.Vector(26.4, -60.1, 0), App.Vector(0, 0, 1), 3.1), math.radians(-120), math.radians(-60)),
    Part.LineSegment(App.Vector(39.2, -43.4, 0), App.Vector(44.8, -40.1, 0)),
    Part.ArcOfCircle(Part.Circle(App.Vector(43.2, -37.4, 0), App.Vector(0, 0, 1), 3.1), math.radians(-60), math.radians(0)),
    Part.LineSegment(App.Vector(46.4, -37.4, 0), App.Vector(46.4, -30.9, 0)),
    Part.ArcOfCircle(Part.Circle(App.Vector(43.2, -30.9, 0), App.Vector(0, 0, 1), 3.1), math.radians(0), math.radians(60)),
    Part.LineSegment(App.Vector(44.8, -28.2, 0), App.Vector(39.2, -25, 0)),
    Part.ArcOfCircle(Part.Circle(App.Vector(37.6, -27.7, 0), App.Vector(0, 0, 1), 3.1), math.radians(60), math.radians(120)),
    Part.LineSegment(App.Vector(36, -25, 0), App.Vector(30.4, -28.2, 0)),
    Part.ArcOfCircle(Part.Circle(App.Vector(32, -30.9, 0), App.Vector(0, 0, 1), 3.1), math.radians(120), math.radians(180)),
    Part.LineSegment(App.Vector(28.9, -30.9, 0), App.Vector(28.9, -37.4, 0)),
    Part.ArcOfCircle(Part.Circle(App.Vector(32, -37.4, 0), App.Vector(0, 0, 1), 3.1), math.radians(180), math.radians(240)),
    Part.LineSegment(App.Vector(30.4, -40.1, 0), App.Vector(36, -43.4, 0)),
    Part.ArcOfCircle(Part.Circle(App.Vector(37.6, -40.7, 0), App.Vector(0, 0, 1), 3.1), math.radians(-120), math.radians(-60)),
    Part.LineSegment(App.Vector(27.9, -23.9, 0), App.Vector(33.5, -20.6, 0)),
    Part.ArcOfCircle(Part.Circle(App.Vector(32, -17.9, 0), App.Vector(0, 0, 1), 3.1), math.radians(-60), math.radians(0)),
    Part.LineSegment(App.Vector(35.1, -17.9, 0), App.Vector(35.1, -11.4, 0)),
    Part.ArcOfCircle(Part.Circle(App.Vector(32, -11.4, 0), App.Vector(0, 0, 1), 3.1), math.radians(0), math.radians(60)),
    Part.LineSegment(App.Vector(33.5, -8.7, 0), App.Vector(27.9, -5.5, 0)),
    Part.ArcOfCircle(Part.Circle(App.Vector(26.4, -8.2, 0), App.Vector(0, 0, 1), 3.1), math.radians(60), math.radians(120)),
    Part.LineSegment(App.Vector(24.8, -5.5, 0), App.Vector(19.2, -8.7, 0)),
    Part.ArcOfCircle(Part.Circle(App.Vector(20.7, -11.4, 0), App.Vector(0, 0, 1), 3.1), math.radians(120), math.radians(180)),
    Part.LineSegment(App.Vector(17.6, -11.4, 0), App.Vector(17.6, -17.9, 0)),
    Part.ArcOfCircle(Part.Circle(App.Vector(20.7, -17.9, 0), App.Vector(0, 0, 1), 3.1), math.radians(180), math.radians(240)),
    Part.LineSegment(App.Vector(19.2, -20.6, 0), App.Vector(24.8, -23.9, 0)),
    Part.ArcOfCircle(Part.Circle(App.Vector(26.4, -21.2, 0), App.Vector(0, 0, 1), 3.1), math.radians(-120), math.radians(-60)),
], False)
sketch6.addConstraint([
    Sketcher.Constraint("Tangent", 0, 2, 1, 1),
    Sketcher.Constraint("Tangent", 1, 2, 2, 1),
    Sketcher.Constraint("Tangent", 2, 2, 3, 1),
    Sketcher.Constraint("Tangent", 3, 2, 4, 1),
    Sketcher.Constraint("Tangent", 4, 2, 5, 1),
    Sketcher.Constraint("Tangent", 5, 2, 6, 1),
    Sketcher.Constraint("Tangent", 6, 2, 7, 1),
    Sketcher.Constraint("Tangent", 7, 2, 8, 1),
    Sketcher.Constraint("Tangent", 8, 2, 9, 1),
    Sketcher.Constraint("Tangent", 9, 2, 10, 1),
    Sketcher.Constraint("Tangent", 10, 2, 11, 1),
    Sketcher.Constraint("Tangent", 11, 2, 0, 1),
    Sketcher.Constraint("Tangent", 12, 2, 13, 1),
    Sketcher.Constraint("Tangent", 13, 2, 14, 1),
    Sketcher.Constraint("Tangent", 14, 2, 15, 1),
    Sketcher.Constraint("Tangent", 15, 2, 16, 1),
    Sketcher.Constraint("Tangent", 16, 2, 17, 1),
    Sketcher.Constraint("Tangent", 17, 2, 12, 1),
    Sketcher.Constraint("Tangent", 18, 2, 19, 1),
    Sketcher.Constraint("Tangent", 19, 2, 20, 1),
    Sketcher.Constraint("Tangent", 20, 2, 21, 1),
    Sketcher.Constraint("Tangent", 21, 2, 22, 1),
    Sketcher.Constraint("Tangent", 22, 2, 23, 1),
    Sketcher.Constraint("Tangent", 23, 2, 24, 1),
    Sketcher.Constraint("Tangent", 24, 2, 25, 1),
    Sketcher.Constraint("Tangent", 25, 2, 26, 1),
    Sketcher.Constraint("Tangent", 26, 2, 27, 1),
    Sketcher.Constraint("Tangent", 27, 2, 28, 1),
    Sketcher.Constraint("Tangent", 28, 2, 29, 1),
    Sketcher.Constraint("Tangent", 29, 2, 18, 1),
    Sketcher.Constraint("Tangent", 30, 2, 31, 1),
    Sketcher.Constraint("Tangent", 31, 2, 32, 1),
    Sketcher.Constraint("Tangent", 32, 2, 33, 1),
    Sketcher.Constraint("Tangent", 33, 2, 34, 1),
    Sketcher.Constraint("Tangent", 34, 2, 35, 1),
    Sketcher.Constraint("Tangent", 35, 2, 36, 1),
    Sketcher.Constraint("Tangent", 36, 2, 37, 1),
    Sketcher.Constraint("Tangent", 37, 2, 38, 1),
    Sketcher.Constraint("Tangent", 38, 2, 39, 1),
    Sketcher.Constraint("Tangent", 39, 2, 40, 1),
    Sketcher.Constraint("Tangent", 40, 2, 41, 1),
    Sketcher.Constraint("Tangent", 41, 2, 30, 1),
    Sketcher.Constraint("Tangent", 42, 2, 43, 1),
    Sketcher.Constraint("Tangent", 43, 2, 44, 1),
    Sketcher.Constraint("Tangent", 44, 2, 45, 1),
    Sketcher.Constraint("Tangent", 45, 2, 46, 1),
    Sketcher.Constraint("Tangent", 46, 2, 47, 1),
    Sketcher.Constraint("Tangent", 47, 2, 48, 1),
    Sketcher.Constraint("Tangent", 48, 2, 49, 1),
    Sketcher.Constraint("Tangent", 49, 2, 50, 1),
    Sketcher.Constraint("Tangent", 50, 2, 51, 1),
    Sketcher.Constraint("Tangent", 51, 2, 52, 1),
    Sketcher.Constraint("Tangent", 52, 2, 53, 1),
    Sketcher.Constraint("Tangent", 53, 2, 42, 1),
    Sketcher.Constraint("Vertical", 2),
    Sketcher.Constraint("Vertical", 8),
    Sketcher.Constraint("Horizontal", 16),
    Sketcher.Constraint("Vertical", 20),
    Sketcher.Constraint("Vertical", 26),
    Sketcher.Constraint("Vertical", 32),
    Sketcher.Constraint("Vertical", 38),
    Sketcher.Constraint("Vertical", 44),
    Sketcher.Constraint("Vertical", 50),
    Sketcher.Constraint("Equal", 1, 3),
    Sketcher.Constraint("Equal", 3, 5),
    Sketcher.Constraint("Equal", 5, 7),
    Sketcher.Constraint("Equal", 7, 9),
    Sketcher.Constraint("Equal", 9, 11),
    Sketcher.Constraint("Equal", 11, 13),
    Sketcher.Constraint("Equal", 15, 17),
    Sketcher.Constraint("Equal", 13, 19),
    Sketcher.Constraint("Equal", 19, 21),
    Sketcher.Constraint("Equal", 21, 23),
    Sketcher.Constraint("Equal", 23, 25),
    Sketcher.Constraint("Equal", 25, 27),
    Sketcher.Constraint("Equal", 27, 29),
    Sketcher.Constraint("Equal", 29, 31),
    Sketcher.Constraint("Equal", 31, 33),
    Sketcher.Constraint("Equal", 33, 35),
    Sketcher.Constraint("Equal", 35, 37),
    Sketcher.Constraint("Equal", 37, 39),
    Sketcher.Constraint("Equal", 39, 41),
    Sketcher.Constraint("Equal", 41, 43),
    Sketcher.Constraint("Equal", 43, 45),
    Sketcher.Constraint("Equal", 45, 47),
    Sketcher.Constraint("Equal", 47, 49),
    Sketcher.Constraint("Equal", 49, 51),
    Sketcher.Constraint("Equal", 51, 53),
    Sketcher.Constraint("Parallel", 0, 6),
    Sketcher.Constraint("Parallel", 4, 10),
    Sketcher.Constraint("Parallel", 10, 12),
    Sketcher.Constraint("Parallel", 6, 14),
    Sketcher.Constraint("Parallel", 14, 18),
    Sketcher.Constraint("Parallel", 12, 22),
    Sketcher.Constraint("Parallel", 18, 24),
    Sketcher.Constraint("Parallel", 22, 28),
    Sketcher.Constraint("Parallel", 24, 30),
    Sketcher.Constraint("Parallel", 28, 34),
    Sketcher.Constraint("Parallel", 30, 36),
    Sketcher.Constraint("Parallel", 34, 40),
    Sketcher.Constraint("Parallel", 36, 42),
    Sketcher.Constraint("Parallel", 40, 46),
    Sketcher.Constraint("Parallel", 42, 48),
    Sketcher.Constraint("Parallel", 46, 52),
    Sketcher.Constraint("Horizontal", 3, 3, 7, 3),
    Sketcher.Constraint("Horizontal", 1, 3, 9, 3),
    Sketcher.Constraint("Horizontal", 9, 3, 19, 3),
    Sketcher.Constraint("Horizontal", 7, 3, 21, 3),
    Sketcher.Constraint("Horizontal", 5, 3, 23, 3),
    Sketcher.Constraint("Horizontal", 21, 3, 25, 3),
    Sketcher.Constraint("Horizontal", 19, 3, 27, 3),
    Sketcher.Constraint("Horizontal", 33, 3, 37, 3),
    Sketcher.Constraint("Horizontal", 31, 3, 39, 3),
    Sketcher.Constraint("Horizontal", 45, 3, 49, 3),
    Sketcher.Constraint("Horizontal", 43, 3, 51, 3),
    Sketcher.Constraint("Horizontal", 4, 2, 5, 2),
    Sketcher.Constraint("Vertical", 9, 3, 31, 3),
    Sketcher.Constraint("Vertical", 13, 3, 35, 3),
    Sketcher.Constraint("Vertical", 21, 3, 37, 3),
    Sketcher.Constraint("Vertical", 39, 3, 43, 3),
    Sketcher.Constraint("Vertical", 29, 3, 47, 3),
    Sketcher.Constraint("Vertical", 17, 2, 30, 2),
    Sketcher.Constraint("Equal", 26, 32),
    Sketcher.Constraint("Equal", 38, 44),
    Sketcher.Constraint("Equal", 10, 12),
    Sketcher.Constraint("Angle", 0, Q("30 deg")),
    Sketcher.Constraint("Radius", 1, Q("3.125 mm")),
    Sketcher.Constraint("DistanceX", -1, 1, 13, 3, Q("37.6 mm")),
    Sketcher.Constraint("DistanceX", -1, 1, 1, 2, Q("57.6 mm")),
    Sketcher.Constraint("Radius", 15, Q("0.78125 mm")),
    Sketcher.Constraint("DistanceY", 2, 1, 2, 2, Q("6.495191 mm")),
    Sketcher.Constraint("DistanceY", 5, 3, -1, 1, Q("47.154809 mm")),
    Sketcher.Constraint("DistanceY", 13, 3, -1, 1, Q("66.640381 mm")),
    Sketcher.Constraint("DistanceY", 41, 3, -1, 1, Q("40.659619 mm")),
    Sketcher.Constraint("DistanceY", 45, 3, -1, 1, Q("11.431262 mm")),
])
pocket5 = doc.addObject("PartDesign::Pocket", "Pocket004")
body.addObject(pocket5)
pocket5.Profile = sketch6
pocket5.Type = "ThroughAll"

doc.recompute()
